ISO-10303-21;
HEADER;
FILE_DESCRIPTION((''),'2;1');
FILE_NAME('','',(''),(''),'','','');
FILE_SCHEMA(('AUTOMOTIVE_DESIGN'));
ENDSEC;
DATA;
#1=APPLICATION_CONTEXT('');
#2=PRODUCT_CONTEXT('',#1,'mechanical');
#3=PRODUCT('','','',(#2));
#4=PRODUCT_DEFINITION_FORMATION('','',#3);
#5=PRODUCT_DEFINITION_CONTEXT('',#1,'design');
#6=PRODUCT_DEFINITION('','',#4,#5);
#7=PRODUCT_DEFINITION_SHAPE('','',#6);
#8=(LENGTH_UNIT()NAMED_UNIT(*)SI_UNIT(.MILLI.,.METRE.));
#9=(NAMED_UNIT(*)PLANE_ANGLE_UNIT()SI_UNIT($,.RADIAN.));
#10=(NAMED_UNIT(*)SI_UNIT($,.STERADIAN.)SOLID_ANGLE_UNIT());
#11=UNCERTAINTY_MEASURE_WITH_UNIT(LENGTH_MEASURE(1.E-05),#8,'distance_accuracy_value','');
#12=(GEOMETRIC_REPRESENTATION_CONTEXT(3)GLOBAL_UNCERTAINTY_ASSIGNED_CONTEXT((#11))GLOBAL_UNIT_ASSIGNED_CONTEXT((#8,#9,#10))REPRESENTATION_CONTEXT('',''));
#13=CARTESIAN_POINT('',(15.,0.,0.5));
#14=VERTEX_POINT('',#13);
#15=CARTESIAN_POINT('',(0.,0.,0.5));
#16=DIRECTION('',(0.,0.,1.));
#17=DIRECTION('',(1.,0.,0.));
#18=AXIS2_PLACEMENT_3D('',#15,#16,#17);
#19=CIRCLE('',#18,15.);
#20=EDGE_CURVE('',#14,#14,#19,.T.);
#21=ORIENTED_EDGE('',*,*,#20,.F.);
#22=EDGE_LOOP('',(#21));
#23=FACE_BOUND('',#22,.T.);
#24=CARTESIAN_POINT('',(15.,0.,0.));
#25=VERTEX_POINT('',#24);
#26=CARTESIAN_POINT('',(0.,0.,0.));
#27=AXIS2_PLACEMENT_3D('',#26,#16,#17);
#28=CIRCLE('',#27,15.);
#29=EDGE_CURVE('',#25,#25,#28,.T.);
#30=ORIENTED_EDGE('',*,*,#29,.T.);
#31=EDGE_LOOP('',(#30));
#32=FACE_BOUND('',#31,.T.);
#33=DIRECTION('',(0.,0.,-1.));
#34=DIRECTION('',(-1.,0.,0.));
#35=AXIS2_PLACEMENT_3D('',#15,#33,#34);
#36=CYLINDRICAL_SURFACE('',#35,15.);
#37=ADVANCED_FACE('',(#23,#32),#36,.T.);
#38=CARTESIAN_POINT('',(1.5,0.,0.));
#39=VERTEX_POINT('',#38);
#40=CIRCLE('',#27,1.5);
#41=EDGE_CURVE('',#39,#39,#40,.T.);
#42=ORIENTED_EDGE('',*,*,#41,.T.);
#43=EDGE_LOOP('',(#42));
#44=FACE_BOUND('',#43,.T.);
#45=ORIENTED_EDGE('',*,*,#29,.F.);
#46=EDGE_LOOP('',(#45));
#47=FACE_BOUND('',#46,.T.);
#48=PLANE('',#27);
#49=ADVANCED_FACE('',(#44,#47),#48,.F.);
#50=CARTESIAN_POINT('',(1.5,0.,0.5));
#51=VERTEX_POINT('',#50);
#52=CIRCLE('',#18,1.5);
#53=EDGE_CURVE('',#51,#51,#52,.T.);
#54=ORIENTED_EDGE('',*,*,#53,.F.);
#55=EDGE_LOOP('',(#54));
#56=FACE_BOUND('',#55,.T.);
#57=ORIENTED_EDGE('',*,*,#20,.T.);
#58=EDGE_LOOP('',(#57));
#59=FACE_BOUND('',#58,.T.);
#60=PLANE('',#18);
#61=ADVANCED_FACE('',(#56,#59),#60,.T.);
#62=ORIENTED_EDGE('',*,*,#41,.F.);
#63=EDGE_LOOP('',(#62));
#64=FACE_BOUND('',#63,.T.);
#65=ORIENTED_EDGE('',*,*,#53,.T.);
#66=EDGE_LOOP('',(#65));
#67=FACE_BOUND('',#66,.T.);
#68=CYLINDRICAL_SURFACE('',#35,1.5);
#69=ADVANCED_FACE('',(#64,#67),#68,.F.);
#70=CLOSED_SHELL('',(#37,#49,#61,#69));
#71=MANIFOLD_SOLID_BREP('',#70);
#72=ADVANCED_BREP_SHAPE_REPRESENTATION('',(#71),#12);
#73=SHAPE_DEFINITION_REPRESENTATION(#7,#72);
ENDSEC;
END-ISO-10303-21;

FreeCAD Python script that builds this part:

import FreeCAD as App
import Part
import Sketcher
Q = App.Units.Quantity

doc = App.newDocument("Part")
params = doc.addObject("Spreadsheet::Sheet", "Params")
for row, (alias, value) in enumerate([
    ("sketch1_diameter", "30 mm"),
    ("sketch1_diameter2", "3 mm"),
    ("pad1_length", "0.5 mm"),
], start=1):
    params.set(f"A{row}", alias)
    params.set(f"B{row}", "=" + value)
    params.setAlias(f"B{row}", alias)

body = doc.addObject("PartDesign::Body", "Body")

# Sketch on XY plane
sketch1 = body.newObject("Sketcher::SketchObject", "Sketch")
sketch1.AttachmentSupport = (doc.getObject("XY_Plane"), [""])
sketch1.MapMode = "FlatFace"
sketch1.addGeometry(Part.Circle(App.Vector(0, 0, 0), App.Vector(0, 0, 1), 15), False)
sketch1.addGeometry(Part.Circle(App.Vector(0, 0, 0), App.Vector(0, 0, 1), 1.5), False)
sketch1.addConstraint(Sketcher.Constraint("Coincident", 0, 3, -1, 1))
sketch1.addConstraint(Sketcher.Constraint("Coincident", 1, 3, -1, 1))
sketch1.addConstraint(Sketcher.Constraint("Diameter", 0, Q("30 mm")))
sketch1.addConstraint(Sketcher.Constraint("Diameter", 1, Q("3 mm")))
sketch1.setExpression("Constraints[2]", "Params.sketch1_diameter")
sketch1.setExpression("Constraints[3]", "Params.sketch1_diameter2")
pad1 = body.newObject("PartDesign::Pad", "Pad")
pad1.Profile = sketch1
pad1.setExpression("Length", "Params.pad1_length")

doc.recompute()
